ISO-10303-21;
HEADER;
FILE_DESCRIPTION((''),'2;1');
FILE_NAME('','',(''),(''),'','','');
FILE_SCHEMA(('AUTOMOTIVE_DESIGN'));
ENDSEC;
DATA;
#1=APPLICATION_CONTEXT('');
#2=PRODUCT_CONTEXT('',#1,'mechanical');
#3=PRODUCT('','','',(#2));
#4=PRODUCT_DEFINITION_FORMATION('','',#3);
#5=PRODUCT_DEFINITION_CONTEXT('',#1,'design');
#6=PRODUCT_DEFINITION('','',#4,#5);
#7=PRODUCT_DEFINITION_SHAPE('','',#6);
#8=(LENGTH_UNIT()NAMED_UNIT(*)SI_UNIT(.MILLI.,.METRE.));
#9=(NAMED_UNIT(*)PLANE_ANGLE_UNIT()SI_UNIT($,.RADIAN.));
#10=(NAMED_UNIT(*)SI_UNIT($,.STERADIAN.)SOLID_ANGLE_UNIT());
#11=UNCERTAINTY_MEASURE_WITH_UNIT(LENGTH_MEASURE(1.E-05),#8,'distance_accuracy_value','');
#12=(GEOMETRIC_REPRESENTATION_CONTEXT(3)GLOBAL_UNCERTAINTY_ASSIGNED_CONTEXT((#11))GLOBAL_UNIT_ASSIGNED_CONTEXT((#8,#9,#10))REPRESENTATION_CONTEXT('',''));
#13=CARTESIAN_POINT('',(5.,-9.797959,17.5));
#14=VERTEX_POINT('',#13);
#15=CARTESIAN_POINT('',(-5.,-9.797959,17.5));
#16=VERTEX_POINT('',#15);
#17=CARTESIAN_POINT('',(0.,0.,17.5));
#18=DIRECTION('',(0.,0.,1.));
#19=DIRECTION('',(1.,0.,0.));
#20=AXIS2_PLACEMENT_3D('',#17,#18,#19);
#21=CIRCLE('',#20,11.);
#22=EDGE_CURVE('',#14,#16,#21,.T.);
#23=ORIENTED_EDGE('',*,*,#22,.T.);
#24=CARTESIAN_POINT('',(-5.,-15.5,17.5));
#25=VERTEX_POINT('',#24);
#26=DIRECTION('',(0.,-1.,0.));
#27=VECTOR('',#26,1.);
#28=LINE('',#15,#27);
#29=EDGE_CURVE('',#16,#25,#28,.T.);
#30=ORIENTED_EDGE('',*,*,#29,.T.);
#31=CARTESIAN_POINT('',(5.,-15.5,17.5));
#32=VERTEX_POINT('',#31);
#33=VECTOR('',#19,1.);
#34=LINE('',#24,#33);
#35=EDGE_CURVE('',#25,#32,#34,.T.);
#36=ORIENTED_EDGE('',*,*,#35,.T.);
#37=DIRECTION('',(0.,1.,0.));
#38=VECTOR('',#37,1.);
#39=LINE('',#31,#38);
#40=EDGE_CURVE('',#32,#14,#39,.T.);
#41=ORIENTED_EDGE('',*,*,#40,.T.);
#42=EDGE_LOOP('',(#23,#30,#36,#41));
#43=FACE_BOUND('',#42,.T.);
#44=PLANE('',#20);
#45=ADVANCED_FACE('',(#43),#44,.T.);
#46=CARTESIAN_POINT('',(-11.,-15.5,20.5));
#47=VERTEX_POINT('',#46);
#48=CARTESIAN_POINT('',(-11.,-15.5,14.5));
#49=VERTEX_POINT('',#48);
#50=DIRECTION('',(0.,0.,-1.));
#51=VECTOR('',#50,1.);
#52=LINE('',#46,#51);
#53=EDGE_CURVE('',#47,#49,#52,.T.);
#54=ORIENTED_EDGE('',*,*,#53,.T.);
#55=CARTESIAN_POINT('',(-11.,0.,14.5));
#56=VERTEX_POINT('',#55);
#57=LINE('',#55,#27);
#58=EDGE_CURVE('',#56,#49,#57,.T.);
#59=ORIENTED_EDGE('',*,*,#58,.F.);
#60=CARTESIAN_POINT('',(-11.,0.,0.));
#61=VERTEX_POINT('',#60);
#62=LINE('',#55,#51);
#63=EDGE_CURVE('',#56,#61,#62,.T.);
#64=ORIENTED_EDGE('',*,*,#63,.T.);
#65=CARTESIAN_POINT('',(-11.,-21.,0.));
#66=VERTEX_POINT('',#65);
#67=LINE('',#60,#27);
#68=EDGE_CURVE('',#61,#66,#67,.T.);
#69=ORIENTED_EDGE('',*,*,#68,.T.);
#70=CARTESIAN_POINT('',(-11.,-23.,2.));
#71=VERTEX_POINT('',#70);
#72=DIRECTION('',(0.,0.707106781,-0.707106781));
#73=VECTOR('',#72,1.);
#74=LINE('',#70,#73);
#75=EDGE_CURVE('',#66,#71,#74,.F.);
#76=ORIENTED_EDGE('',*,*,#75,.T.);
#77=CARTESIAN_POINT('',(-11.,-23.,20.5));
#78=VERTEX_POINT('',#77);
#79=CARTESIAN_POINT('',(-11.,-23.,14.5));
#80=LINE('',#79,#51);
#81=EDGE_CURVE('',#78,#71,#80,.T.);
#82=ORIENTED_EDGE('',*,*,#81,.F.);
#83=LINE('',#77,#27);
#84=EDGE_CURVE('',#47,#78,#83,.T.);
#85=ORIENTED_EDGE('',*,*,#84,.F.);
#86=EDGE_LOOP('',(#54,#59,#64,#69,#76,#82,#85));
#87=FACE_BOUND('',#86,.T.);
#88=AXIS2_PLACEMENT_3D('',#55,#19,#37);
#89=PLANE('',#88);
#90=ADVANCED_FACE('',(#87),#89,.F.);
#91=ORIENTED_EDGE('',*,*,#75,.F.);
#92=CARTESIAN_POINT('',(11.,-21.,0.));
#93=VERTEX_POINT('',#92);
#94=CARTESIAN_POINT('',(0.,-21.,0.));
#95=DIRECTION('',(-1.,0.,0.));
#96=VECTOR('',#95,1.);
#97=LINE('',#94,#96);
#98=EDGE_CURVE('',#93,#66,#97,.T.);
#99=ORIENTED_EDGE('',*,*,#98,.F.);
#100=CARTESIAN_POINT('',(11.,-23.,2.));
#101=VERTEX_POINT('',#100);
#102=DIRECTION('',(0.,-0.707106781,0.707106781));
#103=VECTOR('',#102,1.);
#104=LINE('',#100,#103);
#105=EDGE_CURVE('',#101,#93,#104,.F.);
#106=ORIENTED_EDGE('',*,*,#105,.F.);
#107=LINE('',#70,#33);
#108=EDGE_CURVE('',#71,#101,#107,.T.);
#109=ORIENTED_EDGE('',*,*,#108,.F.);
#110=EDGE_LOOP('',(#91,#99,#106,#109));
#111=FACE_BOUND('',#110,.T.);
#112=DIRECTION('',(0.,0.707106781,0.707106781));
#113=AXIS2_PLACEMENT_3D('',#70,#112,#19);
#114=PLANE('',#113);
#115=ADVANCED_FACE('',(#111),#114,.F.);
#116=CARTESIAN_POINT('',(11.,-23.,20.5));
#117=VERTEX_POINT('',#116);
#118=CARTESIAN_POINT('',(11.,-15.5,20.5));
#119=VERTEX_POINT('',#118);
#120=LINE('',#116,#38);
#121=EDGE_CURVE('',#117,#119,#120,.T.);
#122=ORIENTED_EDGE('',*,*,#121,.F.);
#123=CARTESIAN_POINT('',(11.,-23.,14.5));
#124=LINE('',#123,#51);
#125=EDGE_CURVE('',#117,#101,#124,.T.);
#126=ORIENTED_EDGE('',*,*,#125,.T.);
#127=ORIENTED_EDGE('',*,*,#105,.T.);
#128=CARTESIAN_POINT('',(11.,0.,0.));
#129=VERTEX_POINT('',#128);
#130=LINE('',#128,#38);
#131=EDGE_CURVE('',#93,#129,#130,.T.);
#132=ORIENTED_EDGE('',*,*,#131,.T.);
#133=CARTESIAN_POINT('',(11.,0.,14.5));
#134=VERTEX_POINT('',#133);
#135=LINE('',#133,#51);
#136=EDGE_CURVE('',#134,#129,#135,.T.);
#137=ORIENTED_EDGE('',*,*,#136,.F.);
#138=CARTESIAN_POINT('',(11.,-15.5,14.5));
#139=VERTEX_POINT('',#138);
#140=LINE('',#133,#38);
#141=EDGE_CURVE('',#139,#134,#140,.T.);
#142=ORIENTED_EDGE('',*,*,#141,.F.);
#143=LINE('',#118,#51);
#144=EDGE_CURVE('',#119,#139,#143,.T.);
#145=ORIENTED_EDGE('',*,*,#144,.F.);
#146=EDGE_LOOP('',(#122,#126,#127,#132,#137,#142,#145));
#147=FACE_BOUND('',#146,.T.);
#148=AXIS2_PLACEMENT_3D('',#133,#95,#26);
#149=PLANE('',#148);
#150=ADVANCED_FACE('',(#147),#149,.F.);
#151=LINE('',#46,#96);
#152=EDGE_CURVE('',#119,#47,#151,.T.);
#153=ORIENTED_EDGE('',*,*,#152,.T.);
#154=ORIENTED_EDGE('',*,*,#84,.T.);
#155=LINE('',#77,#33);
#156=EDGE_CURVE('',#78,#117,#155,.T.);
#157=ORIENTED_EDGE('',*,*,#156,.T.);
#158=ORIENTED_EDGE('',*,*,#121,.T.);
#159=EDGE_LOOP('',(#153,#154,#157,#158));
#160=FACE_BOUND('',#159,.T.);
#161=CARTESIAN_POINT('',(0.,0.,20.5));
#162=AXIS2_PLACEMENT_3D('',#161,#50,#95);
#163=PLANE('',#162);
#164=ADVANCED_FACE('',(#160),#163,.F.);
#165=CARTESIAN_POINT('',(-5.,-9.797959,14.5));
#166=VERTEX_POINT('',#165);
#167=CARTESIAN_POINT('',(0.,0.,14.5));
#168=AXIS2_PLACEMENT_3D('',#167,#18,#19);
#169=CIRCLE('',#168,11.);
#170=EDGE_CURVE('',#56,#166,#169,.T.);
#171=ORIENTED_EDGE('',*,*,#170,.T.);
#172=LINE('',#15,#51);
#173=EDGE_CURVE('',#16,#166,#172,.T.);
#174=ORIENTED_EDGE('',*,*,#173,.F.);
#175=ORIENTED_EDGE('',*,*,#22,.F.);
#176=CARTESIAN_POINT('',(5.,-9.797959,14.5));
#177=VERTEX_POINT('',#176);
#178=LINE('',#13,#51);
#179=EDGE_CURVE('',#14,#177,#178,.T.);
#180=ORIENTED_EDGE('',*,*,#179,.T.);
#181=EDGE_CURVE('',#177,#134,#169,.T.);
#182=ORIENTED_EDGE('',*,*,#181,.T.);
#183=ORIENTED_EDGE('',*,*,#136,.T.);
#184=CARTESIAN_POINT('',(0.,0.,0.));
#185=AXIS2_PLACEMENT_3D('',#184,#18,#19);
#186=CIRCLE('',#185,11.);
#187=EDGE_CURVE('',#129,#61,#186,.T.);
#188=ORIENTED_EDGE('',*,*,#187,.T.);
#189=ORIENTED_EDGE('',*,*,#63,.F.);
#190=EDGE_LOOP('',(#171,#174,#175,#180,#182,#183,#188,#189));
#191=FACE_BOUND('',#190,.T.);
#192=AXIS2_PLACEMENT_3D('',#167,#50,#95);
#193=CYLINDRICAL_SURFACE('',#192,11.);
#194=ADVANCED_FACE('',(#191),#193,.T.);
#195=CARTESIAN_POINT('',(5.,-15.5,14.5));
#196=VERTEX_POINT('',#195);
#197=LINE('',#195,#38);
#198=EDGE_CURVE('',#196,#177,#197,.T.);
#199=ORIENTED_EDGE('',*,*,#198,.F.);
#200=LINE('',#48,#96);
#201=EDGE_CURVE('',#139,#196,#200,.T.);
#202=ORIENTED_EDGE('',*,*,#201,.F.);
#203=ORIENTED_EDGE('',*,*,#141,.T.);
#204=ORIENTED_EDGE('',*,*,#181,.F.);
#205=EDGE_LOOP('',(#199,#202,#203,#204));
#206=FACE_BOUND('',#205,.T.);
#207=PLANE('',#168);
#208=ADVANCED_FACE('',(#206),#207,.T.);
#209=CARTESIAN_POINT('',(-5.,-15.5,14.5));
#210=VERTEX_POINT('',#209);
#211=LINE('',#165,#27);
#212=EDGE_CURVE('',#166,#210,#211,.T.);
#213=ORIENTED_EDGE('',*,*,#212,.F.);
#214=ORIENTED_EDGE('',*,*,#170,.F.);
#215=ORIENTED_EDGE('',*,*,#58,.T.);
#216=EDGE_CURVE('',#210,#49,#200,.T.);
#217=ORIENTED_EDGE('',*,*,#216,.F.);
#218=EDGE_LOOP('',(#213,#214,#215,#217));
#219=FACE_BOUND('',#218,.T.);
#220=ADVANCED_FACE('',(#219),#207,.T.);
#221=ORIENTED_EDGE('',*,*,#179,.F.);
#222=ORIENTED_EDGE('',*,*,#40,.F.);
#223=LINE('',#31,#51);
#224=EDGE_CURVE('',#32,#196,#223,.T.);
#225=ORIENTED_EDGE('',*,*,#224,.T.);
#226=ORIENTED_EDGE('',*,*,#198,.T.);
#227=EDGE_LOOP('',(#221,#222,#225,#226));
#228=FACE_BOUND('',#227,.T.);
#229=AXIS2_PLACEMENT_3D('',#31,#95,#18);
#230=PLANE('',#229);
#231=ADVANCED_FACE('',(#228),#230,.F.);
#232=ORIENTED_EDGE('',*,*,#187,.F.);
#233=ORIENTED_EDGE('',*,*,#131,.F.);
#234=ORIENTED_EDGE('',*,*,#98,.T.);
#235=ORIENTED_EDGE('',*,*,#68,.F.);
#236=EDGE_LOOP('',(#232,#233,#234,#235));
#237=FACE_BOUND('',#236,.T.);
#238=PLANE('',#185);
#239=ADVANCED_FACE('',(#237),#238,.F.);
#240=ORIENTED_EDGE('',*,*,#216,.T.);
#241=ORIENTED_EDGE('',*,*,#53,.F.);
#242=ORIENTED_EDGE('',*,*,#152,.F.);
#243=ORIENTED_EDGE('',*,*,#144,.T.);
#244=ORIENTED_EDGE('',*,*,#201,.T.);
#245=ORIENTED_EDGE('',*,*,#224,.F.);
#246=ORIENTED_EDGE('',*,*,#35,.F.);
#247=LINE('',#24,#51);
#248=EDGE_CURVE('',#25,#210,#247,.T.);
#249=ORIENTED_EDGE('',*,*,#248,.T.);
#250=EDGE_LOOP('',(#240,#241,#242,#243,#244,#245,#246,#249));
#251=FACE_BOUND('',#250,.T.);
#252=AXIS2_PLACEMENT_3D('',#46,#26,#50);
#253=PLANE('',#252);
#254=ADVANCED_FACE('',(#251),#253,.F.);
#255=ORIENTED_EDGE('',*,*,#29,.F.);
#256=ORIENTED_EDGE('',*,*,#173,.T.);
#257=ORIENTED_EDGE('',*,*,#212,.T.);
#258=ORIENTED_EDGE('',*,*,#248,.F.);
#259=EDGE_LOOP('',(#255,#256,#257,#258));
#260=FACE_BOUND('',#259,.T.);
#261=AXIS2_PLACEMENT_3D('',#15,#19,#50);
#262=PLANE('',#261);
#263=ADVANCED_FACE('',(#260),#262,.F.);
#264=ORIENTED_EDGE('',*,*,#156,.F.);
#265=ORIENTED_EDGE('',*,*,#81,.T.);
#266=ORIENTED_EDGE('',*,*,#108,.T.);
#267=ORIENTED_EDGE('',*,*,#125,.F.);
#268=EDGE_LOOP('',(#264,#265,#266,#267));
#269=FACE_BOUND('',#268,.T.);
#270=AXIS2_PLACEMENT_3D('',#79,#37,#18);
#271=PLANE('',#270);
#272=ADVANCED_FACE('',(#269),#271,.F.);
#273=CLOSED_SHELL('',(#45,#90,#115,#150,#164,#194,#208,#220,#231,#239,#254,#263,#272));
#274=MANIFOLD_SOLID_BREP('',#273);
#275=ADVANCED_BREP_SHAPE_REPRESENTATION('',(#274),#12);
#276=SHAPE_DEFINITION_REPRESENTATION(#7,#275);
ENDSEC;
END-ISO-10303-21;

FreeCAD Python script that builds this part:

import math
import FreeCAD as App
import Part
import Sketcher


def edges_at(feature, points):
    """Names of the edges that pass closest to the given points."""
    edges = feature.Shape.Edges
    near = lambda p: min(range(len(edges)), key=lambda i: edges[i].distToShape(Part.Vertex(*p))[0])
    return sorted({f"Edge{near(p) + 1}" for p in points})


def add_polygon(sketch, points):
    """Adds a closed chain of lines whose ends are joined by coincident constraints."""
    first, n = sketch.GeometryCount, len(points)
    for a, b in zip(points, points[1:] + points[:1]):
        sketch.addGeometry(Part.LineSegment(App.Vector(*a, 0), App.Vector(*b, 0)), False)
    for i in range(n):
        sketch.addConstraint(Sketcher.Constraint("Coincident", first + i, 2, first + (i + 1) % n, 1))

doc = App.newDocument("Part")
body = doc.addObject("PartDesign::Body", "Body")

# Sketch on XY plane
sketch1 = body.newObject("Sketcher::SketchObject", "Sketch")
sketch1.AttachmentSupport = (doc.getObject("XY_Plane"), [""])
sketch1.MapMode = "FlatFace"
sketch1.addGeometry(Part.LineSegment(App.Vector(-11, 0, 0), App.Vector(-11, -23, 0)), False)
sketch1.addGeometry(Part.LineSegment(App.Vector(-11, -23, 0), App.Vector(11, -23, 0)), False)
sketch1.addGeometry(Part.LineSegment(App.Vector(11, -23, 0), App.Vector(11, 0, 0)), False)
sketch1.addGeometry(Part.ArcOfCircle(Part.Circle(App.Vector(0, 0, 0), App.Vector(0, 0, 1), 11), math.radians(0), math.radians(180)), False)
sketch1.addConstraint(Sketcher.Constraint("Coincident", 0, 2, 1, 1))
sketch1.addConstraint(Sketcher.Constraint("Coincident", 1, 2, 2, 1))
sketch1.addConstraint(Sketcher.Constraint("Tangent", 2, 2, 3, 1))
sketch1.addConstraint(Sketcher.Constraint("Tangent", 3, 2, 0, 1))
sketch1.addConstraint(Sketcher.Constraint("Vertical", 0))
sketch1.addConstraint(Sketcher.Constraint("Horizontal", 1))
sketch1.addConstraint(Sketcher.Constraint("Vertical", 2))
sketch1.addConstraint(Sketcher.Constraint("Coincident", 3, 3, -1, 1))
sketch1.addConstraint(Sketcher.Constraint("Radius", 3, 11.0))
sketch1.addConstraint(Sketcher.Constraint("DistanceY", 0, 2, 0, 1, 23.0))
pad1 = body.newObject("PartDesign::Pad", "Pad")
pad1.Profile = sketch1
pad1.Length = 14.5
doc.recompute()

chamfer = body.newObject("PartDesign::Chamfer", "Chamfer")
chamfer.Base = (pad1, edges_at(pad1, [(0, -23, 0)]))
chamfer.Size = 2

# Sketch on XY plane
sketch2 = body.newObject("Sketcher::SketchObject", "Sketch001")
sketch2.AttachmentSupport = (doc.getObject("XY_Plane"), [""])
sketch2.MapMode = "FlatFace"
sketch2.AttachmentOffset = App.Placement(App.Vector(0, 0, 14.5), App.Rotation())
add_polygon(sketch2, [(-11, -16), (-11, -23), (11, -23), (11, -16)])  # lines 0-3
sketch2.addConstraint(Sketcher.Constraint("Vertical", 0))
sketch2.addConstraint(Sketcher.Constraint("Horizontal", 1))
sketch2.addConstraint(Sketcher.Constraint("Vertical", 2))
sketch2.addConstraint(Sketcher.Constraint("Horizontal", 3))
sketch2.addConstraint(Sketcher.Constraint("DistanceX", 1, 1, 1, 2, 22.0))
sketch2.addConstraint(Sketcher.Constraint("DistanceY", 0, 2, 0, 1, 7.5))
sketch2.addConstraint(Sketcher.Constraint("DistanceX", 0, 2, -1, 1, 11.0))
sketch2.addConstraint(Sketcher.Constraint("DistanceY", 0, 2, -1, 1, 23.0))
pad2 = body.newObject("PartDesign::Pad", "Pad001")
pad2.Profile = sketch2
pad2.Length = 6

# Sketch on XY plane
sketch3 = body.newObject("Sketcher::SketchObject", "Sketch002")
sketch3.AttachmentSupport = (doc.getObject("XY_Plane"), [""])
sketch3.MapMode = "FlatFace"
sketch3.AttachmentOffset = App.Placement(App.Vector(0, 0, 14.5), App.Rotation())
sketch3.addGeometry(Part.LineSegment(App.Vector(-5, -10, 0), App.Vector(-5, -16, 0)), False)
sketch3.addGeometry(Part.LineSegment(App.Vector(-5, -16, 0), App.Vector(5, -16, 0)), False)
sketch3.addGeometry(Part.LineSegment(App.Vector(5, -16, 0), App.Vector(5, -10, 0)), False)
sketch3.addGeometry(Part.ArcOfCircle(Part.Circle(App.Vector(0, 0, 0), App.Vector(0, 0, 1), 11), math.radians(-63), math.radians(243)), False)
sketch3.addConstraint(Sketcher.Constraint("Coincident", 0, 2, 1, 1))
sketch3.addConstraint(Sketcher.Constraint("Coincident", 1, 2, 2, 1))
sketch3.addConstraint(Sketcher.Constraint("Coincident", 2, 2, 3, 1))
sketch3.addConstraint(Sketcher.Constraint("Coincident", 3, 2, 0, 1))
sketch3.addConstraint(Sketcher.Constraint("Vertical", 0))
sketch3.addConstraint(Sketcher.Constraint("Horizontal", 1))
sketch3.addConstraint(Sketcher.Constraint("Vertical", 2))
sketch3.addConstraint(Sketcher.Constraint("Coincident", 3, 3, -1, 1))
sketch3.addConstraint(Sketcher.Constraint("Horizontal", 2, 2, 3, 2))
sketch3.addConstraint(Sketcher.Constraint("Radius", 3, 11.0))
sketch3.addConstraint(Sketcher.Constraint("DistanceX", 1, 1, 1, 2, 10.0))
sketch3.addConstraint(Sketcher.Constraint("DistanceY", 0, 2, -1, 1, 15.5))
pad3 = body.newObject("PartDesign::Pad", "Pad002")
pad3.Profile = sketch3
pad3.Length = 3

doc.recompute()
